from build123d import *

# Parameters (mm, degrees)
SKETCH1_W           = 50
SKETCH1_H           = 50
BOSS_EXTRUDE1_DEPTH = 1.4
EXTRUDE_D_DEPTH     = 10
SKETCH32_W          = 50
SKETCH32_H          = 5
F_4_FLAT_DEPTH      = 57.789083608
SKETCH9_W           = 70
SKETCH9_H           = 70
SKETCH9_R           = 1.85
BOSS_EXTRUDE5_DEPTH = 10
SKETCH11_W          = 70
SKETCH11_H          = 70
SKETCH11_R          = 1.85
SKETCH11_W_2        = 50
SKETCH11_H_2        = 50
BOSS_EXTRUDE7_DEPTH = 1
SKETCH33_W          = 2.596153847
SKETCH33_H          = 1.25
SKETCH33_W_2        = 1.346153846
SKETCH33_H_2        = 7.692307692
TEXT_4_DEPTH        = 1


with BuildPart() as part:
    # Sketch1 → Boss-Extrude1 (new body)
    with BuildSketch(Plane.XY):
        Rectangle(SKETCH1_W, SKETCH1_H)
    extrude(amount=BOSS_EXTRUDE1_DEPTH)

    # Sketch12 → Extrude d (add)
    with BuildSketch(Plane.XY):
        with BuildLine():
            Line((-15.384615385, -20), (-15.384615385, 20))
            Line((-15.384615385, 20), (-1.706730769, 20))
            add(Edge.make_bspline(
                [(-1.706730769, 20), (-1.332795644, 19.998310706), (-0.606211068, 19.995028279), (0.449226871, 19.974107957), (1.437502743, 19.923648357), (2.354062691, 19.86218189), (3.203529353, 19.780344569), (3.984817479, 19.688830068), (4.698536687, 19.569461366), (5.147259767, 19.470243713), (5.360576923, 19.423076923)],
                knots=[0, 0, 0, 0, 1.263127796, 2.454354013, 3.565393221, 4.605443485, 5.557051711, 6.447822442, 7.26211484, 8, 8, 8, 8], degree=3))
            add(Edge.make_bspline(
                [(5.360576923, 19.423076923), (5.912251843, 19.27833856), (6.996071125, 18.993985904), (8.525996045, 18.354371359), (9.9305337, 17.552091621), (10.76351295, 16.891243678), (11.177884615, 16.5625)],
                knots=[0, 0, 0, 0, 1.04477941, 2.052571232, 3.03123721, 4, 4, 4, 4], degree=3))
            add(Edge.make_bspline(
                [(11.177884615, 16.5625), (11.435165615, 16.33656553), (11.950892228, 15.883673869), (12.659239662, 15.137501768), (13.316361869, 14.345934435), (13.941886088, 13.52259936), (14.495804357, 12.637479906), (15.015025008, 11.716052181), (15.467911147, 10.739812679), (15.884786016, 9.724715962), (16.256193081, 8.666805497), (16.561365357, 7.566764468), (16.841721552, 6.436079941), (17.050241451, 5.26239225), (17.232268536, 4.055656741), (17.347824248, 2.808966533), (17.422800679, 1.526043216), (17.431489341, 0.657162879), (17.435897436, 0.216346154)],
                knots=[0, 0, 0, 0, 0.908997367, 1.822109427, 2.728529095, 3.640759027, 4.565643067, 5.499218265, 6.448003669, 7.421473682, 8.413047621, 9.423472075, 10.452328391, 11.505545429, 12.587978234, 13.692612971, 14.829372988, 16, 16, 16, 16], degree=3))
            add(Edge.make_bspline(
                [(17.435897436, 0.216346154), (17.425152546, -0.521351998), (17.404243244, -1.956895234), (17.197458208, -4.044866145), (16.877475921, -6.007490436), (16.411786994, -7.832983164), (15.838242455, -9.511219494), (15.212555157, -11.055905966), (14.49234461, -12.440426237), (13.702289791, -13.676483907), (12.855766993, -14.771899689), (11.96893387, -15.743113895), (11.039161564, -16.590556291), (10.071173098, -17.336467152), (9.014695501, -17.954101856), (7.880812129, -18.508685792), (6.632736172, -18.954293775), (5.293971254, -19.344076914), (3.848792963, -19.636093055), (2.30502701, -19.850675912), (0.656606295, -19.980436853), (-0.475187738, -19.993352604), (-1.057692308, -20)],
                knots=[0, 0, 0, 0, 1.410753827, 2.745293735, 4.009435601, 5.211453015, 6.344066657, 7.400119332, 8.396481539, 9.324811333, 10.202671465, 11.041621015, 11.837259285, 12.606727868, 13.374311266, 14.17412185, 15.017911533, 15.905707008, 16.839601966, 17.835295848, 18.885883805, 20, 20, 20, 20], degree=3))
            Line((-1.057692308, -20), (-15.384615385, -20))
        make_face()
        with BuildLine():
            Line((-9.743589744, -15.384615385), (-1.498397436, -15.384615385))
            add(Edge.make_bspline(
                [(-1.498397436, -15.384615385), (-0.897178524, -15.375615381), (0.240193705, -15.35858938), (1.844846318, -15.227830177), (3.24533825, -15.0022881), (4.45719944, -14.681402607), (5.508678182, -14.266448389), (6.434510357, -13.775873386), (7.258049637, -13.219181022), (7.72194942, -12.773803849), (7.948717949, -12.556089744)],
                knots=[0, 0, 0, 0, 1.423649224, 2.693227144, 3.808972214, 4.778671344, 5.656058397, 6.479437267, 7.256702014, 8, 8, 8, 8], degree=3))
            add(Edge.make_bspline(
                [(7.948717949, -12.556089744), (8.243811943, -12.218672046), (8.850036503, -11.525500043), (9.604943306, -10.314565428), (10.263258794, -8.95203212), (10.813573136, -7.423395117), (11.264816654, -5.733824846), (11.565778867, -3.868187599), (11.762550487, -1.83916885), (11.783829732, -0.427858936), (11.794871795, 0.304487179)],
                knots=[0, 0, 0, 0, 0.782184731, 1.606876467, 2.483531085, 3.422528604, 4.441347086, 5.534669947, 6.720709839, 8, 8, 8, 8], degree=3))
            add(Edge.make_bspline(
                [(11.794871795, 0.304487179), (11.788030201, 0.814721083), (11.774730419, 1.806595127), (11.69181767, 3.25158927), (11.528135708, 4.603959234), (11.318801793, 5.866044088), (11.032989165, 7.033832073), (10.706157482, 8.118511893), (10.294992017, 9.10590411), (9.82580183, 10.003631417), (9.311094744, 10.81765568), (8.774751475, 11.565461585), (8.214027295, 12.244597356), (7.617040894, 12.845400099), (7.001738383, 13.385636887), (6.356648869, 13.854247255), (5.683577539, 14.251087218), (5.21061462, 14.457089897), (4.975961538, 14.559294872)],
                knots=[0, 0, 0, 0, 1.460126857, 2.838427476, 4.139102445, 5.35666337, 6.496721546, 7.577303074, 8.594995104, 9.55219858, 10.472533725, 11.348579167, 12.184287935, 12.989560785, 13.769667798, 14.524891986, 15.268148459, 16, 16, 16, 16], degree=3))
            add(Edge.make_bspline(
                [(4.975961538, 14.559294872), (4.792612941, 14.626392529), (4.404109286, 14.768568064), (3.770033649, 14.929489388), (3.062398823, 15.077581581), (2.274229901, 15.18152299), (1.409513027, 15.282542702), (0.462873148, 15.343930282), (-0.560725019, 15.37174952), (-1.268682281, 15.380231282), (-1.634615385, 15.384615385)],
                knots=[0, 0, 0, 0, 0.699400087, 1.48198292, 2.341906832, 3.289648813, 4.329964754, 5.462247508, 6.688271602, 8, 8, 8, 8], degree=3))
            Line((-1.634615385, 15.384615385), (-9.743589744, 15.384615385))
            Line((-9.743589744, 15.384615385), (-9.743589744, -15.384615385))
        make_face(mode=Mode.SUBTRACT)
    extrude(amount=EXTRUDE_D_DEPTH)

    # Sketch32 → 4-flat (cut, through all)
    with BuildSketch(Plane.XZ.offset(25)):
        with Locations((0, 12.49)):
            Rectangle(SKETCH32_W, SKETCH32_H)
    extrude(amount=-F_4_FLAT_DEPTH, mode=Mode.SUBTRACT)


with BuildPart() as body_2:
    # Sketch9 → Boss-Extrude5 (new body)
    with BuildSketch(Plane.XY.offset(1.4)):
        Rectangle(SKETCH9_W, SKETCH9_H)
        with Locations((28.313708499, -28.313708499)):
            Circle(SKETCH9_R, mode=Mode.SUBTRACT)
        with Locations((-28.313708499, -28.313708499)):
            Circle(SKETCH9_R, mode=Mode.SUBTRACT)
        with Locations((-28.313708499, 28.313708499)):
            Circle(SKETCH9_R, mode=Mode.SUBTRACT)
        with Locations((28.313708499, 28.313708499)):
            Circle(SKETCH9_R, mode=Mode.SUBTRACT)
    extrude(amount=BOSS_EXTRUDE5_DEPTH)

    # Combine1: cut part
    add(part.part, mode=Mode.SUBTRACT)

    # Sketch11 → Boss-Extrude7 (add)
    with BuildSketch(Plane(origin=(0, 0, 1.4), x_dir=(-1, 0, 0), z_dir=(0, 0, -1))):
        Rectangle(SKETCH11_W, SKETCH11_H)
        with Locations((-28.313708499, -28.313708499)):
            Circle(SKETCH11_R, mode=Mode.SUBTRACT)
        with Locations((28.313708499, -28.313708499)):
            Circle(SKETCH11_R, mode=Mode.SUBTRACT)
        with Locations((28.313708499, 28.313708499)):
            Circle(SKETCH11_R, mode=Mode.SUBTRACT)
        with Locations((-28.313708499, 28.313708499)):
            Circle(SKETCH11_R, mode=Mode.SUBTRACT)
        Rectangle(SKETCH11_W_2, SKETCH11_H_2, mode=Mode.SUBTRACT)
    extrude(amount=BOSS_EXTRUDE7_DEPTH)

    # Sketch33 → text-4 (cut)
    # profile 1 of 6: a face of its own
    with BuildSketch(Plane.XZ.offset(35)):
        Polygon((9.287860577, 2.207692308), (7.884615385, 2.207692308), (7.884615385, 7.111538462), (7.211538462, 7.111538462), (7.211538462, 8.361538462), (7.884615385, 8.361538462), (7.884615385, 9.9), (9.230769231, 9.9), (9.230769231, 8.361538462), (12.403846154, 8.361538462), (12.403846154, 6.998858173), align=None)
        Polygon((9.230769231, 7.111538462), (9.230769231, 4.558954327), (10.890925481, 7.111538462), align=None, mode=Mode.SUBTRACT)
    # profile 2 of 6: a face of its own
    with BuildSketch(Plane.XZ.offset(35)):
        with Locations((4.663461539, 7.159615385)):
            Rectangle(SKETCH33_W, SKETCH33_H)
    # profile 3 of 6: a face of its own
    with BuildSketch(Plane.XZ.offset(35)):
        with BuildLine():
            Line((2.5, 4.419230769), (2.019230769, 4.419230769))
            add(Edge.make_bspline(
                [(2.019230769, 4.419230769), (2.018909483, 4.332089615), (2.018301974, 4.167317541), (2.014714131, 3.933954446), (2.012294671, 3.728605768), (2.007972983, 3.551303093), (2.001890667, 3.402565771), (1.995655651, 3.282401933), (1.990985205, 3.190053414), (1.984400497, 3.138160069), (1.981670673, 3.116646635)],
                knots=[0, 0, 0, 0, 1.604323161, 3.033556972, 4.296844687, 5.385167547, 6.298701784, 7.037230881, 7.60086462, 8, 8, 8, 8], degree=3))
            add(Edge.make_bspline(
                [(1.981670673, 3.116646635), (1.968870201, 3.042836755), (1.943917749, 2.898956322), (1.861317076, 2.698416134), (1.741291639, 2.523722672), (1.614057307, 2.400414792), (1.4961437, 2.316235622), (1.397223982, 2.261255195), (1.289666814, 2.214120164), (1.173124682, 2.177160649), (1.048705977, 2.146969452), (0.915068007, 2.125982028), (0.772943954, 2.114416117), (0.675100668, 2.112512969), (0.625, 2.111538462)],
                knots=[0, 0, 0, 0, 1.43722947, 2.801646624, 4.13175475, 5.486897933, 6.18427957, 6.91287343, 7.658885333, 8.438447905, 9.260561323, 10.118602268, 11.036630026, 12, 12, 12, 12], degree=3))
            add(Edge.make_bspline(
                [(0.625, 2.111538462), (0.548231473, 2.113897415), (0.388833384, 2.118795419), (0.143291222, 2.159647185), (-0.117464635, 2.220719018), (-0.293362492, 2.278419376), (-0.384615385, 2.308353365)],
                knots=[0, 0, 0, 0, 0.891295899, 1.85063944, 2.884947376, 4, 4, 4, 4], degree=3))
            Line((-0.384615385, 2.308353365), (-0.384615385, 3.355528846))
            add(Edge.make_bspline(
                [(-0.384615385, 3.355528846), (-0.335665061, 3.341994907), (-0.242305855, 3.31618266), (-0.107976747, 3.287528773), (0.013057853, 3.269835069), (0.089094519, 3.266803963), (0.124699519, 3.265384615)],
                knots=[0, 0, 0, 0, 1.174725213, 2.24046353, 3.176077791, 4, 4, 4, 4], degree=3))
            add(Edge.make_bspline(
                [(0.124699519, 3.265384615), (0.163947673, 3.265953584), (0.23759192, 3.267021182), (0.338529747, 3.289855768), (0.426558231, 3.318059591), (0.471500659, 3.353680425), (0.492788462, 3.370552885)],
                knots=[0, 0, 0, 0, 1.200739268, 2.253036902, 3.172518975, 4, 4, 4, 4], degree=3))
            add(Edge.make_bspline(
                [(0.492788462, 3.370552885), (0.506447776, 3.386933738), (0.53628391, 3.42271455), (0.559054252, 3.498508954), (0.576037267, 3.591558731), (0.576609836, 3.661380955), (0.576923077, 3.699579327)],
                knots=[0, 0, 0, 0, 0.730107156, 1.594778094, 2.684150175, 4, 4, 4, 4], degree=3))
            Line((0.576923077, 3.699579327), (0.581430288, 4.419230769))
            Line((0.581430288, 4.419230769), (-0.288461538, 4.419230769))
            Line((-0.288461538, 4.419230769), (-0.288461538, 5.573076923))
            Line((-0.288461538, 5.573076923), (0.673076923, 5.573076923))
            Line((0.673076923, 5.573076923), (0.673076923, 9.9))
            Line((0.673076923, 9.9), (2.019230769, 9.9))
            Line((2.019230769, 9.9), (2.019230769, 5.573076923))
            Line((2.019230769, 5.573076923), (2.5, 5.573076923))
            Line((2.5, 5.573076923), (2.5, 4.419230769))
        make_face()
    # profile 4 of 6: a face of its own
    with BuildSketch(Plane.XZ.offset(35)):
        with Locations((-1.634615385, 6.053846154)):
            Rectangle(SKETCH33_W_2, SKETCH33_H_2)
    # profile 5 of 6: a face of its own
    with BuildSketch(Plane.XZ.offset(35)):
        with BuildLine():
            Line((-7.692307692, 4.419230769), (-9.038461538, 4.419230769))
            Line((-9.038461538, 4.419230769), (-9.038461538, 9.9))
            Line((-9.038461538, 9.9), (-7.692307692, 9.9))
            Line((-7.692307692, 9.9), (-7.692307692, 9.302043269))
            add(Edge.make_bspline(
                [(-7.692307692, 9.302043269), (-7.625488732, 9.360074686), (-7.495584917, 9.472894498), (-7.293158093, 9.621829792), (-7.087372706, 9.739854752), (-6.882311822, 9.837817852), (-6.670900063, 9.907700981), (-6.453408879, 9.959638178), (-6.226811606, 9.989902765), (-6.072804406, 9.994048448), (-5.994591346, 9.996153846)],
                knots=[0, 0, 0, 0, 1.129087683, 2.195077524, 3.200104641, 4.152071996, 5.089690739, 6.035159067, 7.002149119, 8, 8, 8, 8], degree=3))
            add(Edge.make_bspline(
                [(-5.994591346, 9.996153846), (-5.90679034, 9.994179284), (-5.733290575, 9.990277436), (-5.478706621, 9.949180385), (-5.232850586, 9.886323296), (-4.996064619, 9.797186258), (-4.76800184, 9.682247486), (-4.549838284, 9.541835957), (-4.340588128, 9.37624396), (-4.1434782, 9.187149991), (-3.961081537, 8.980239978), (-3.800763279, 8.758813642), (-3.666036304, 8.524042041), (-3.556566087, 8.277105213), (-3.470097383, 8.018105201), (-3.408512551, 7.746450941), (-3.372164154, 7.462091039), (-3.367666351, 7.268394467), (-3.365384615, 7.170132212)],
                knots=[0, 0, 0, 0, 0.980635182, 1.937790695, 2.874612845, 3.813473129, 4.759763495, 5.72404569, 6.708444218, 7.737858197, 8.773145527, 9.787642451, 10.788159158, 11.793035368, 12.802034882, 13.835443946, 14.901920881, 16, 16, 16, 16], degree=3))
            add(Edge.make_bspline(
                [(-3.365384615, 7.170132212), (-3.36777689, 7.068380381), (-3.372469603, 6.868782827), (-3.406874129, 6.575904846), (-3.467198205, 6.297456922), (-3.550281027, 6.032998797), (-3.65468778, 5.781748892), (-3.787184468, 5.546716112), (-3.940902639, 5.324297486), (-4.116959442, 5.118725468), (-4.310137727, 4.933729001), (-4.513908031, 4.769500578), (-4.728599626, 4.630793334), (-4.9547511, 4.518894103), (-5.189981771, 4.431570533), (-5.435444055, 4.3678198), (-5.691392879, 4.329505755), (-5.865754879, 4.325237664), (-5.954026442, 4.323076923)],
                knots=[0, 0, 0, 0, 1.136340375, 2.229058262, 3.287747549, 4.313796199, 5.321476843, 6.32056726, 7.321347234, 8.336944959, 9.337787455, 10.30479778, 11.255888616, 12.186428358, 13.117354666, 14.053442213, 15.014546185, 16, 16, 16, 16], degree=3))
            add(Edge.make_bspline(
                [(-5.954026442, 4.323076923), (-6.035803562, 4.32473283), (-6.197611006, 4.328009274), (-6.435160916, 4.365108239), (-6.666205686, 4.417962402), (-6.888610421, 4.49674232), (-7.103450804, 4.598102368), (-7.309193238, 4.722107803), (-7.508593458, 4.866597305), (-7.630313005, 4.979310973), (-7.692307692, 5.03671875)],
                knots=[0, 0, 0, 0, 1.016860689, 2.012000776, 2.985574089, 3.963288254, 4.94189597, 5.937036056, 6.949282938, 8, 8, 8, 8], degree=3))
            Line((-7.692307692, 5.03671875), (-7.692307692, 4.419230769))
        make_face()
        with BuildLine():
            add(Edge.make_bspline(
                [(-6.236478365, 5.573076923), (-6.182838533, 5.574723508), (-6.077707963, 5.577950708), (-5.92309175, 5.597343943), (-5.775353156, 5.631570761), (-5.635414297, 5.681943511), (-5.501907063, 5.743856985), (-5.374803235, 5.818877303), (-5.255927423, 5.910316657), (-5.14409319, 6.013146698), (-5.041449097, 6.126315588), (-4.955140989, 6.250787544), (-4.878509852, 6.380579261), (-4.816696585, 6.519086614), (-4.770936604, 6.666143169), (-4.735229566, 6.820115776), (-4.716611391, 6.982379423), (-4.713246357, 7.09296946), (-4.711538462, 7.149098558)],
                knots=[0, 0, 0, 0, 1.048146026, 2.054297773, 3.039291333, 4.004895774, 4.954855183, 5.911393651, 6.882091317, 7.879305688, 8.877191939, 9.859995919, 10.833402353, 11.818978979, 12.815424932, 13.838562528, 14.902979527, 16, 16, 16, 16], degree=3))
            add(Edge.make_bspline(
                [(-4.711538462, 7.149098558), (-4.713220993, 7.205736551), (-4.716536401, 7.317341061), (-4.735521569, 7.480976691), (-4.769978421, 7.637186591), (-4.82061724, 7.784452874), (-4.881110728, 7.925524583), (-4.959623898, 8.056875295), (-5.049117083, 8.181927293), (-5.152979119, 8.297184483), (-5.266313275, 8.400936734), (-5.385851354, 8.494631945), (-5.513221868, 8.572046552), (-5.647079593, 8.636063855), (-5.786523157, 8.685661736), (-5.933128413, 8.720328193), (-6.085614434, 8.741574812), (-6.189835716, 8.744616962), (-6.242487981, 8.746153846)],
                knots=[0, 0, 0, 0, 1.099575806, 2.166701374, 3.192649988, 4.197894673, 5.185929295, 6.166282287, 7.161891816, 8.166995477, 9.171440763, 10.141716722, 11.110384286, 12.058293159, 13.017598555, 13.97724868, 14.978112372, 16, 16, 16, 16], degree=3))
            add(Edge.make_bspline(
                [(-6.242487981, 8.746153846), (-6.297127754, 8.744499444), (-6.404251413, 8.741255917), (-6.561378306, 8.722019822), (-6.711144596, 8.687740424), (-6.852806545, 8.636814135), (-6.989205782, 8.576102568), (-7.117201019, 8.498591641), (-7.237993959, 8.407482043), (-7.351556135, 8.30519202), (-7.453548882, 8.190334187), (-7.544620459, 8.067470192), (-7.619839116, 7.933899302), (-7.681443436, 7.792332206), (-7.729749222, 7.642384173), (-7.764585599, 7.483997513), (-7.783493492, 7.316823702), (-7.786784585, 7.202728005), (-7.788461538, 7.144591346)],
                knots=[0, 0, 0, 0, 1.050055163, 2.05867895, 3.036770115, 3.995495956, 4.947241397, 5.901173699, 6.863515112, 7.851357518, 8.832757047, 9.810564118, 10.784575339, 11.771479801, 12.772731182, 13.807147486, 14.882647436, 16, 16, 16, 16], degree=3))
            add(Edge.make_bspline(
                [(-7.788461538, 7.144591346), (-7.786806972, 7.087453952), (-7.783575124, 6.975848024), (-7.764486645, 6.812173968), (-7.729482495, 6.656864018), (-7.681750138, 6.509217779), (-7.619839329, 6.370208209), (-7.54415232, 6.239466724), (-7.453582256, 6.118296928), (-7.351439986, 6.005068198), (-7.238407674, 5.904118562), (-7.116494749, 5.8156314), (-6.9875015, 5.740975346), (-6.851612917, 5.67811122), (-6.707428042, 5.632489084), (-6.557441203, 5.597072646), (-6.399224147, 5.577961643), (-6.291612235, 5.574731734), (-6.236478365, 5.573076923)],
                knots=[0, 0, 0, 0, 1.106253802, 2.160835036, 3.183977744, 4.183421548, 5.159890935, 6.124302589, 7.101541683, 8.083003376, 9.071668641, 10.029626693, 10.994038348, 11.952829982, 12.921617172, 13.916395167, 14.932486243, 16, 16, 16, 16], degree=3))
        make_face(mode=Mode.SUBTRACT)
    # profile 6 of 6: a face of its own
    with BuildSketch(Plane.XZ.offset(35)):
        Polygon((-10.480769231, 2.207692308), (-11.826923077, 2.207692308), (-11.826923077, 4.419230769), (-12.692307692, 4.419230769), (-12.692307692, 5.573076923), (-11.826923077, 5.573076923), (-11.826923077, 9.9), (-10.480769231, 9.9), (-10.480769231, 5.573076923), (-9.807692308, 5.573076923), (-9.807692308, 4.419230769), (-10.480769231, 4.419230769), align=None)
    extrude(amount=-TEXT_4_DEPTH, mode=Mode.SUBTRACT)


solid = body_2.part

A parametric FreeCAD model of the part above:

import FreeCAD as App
import Part
import Sketcher

V = App.Vector


def add_polygon(sketch, points):
    """Adds a closed chain of lines whose ends are joined by coincident constraints."""
    first, n = sketch.GeometryCount, len(points)
    for a, b in zip(points, points[1:] + points[:1]):
        sketch.addGeometry(Part.LineSegment(App.Vector(*a, 0), App.Vector(*b, 0)), False)
    for i in range(n):
        sketch.addConstraint(Sketcher.Constraint("Coincident", first + i, 2, first + (i + 1) % n, 1))

doc = App.newDocument("Part")
body = doc.addObject("PartDesign::Body", "Body")

sketch1 = body.newObject("Sketcher::SketchObject", "Sketch")
sketch1.AttachmentSupport = (doc.getObject("XY_Plane"), [""])
sketch1.MapMode = "FlatFace"
add_polygon(sketch1, [(-25, 25), (-25, -25), (25, -25), (25, 25)])
sketch1.addConstraint(Sketcher.Constraint("Vertical", 0))
sketch1.addConstraint(Sketcher.Constraint("Horizontal", 1))
sketch1.addConstraint(Sketcher.Constraint("Vertical", 2))
sketch1.addConstraint(Sketcher.Constraint("Horizontal", 3))
sketch1.addConstraint(Sketcher.Constraint("Symmetric", 0, 2, 2, 2, -1, 1))
sketch1.addConstraint(Sketcher.Constraint("Equal", 3, 0))
sketch1.addConstraint(Sketcher.Constraint("DistanceX", 1, 1, 1, 2, 50.0))
pad1 = body.newObject("PartDesign::Pad", "Pad")
pad1.Profile = sketch1
pad1.Length = 1.4

sketch2 = body.newObject("Sketcher::SketchObject", "Sketch001")
sketch2.AttachmentSupport = (doc.getObject("XY_Plane"), [""])
sketch2.MapMode = "FlatFace"
sketch2.addGeometry(Part.LineSegment(V(-15.384615, 20, 0), V(-15.384615, -20, 0)), False)
sketch2.addGeometry(Part.LineSegment(V(-15.384615, -20, 0), V(-1.057692, -20, 0)), False)
sketch2.addGeometry(Part.BSplineCurve([V(17.435897, 0.216346, 0), V(17.425153, -0.521352, 0), V(17.404243, -1.956895, 0), V(17.197458, -4.044866, 0), V(16.877476, -6.00749, 0), V(16.411787, -7.832983, 0), V(15.838242, -9.511219, 0), V(15.212555, -11.055906, 0), V(14.492345, -12.440426, 0), V(13.70229, -13.676484, 0), V(12.855767, -14.7719, 0), V(11.968934, -15.743114, 0), V(11.039162, -16.590556, 0), V(10.071173, -17.336467, 0), V(9.014696, -17.954102, 0), V(7.880812, -18.508686, 0), V(6.632736, -18.954294, 0), V(5.293971, -19.344077, 0), V(3.848793, -19.636093, 0), V(2.305027, -19.850676, 0), V(0.656606, -19.980437, 0), V(-0.475188, -19.993353, 0), V(-1.057692, -20, 0)], [4, 1, 1, 1, 1, 1, 1, 1, 1, 1, 1, 1, 1, 1, 1, 1, 1, 1, 1, 1, 4], [0, 1.410753827, 2.745293735, 4.009435601, 5.211453015, 6.344066657, 7.400119332, 8.396481539, 9.324811333, 10.202671465, 11.041621015, 11.837259285, 12.606727868, 13.374311266, 14.17412185, 15.017911533, 15.905707008, 16.839601966, 17.835295848, 18.885883805, 20], False, 3, [1, 1, 1, 1, 1, 1, 1, 1, 1, 1, 1, 1, 1, 1, 1, 1, 1, 1, 1, 1, 1, 1, 1], False), False)
sketch2.addGeometry(Part.BSplineCurve([V(11.177885, 16.5625, 0), V(11.435166, 16.336566, 0), V(11.950892, 15.883674, 0), V(12.65924, 15.137502, 0), V(13.316362, 14.345934, 0), V(13.941886, 13.522599, 0), V(14.495804, 12.63748, 0), V(15.015025, 11.716052, 0), V(15.467911, 10.739813, 0), V(15.884786, 9.724716, 0), V(16.256193, 8.666805, 0), V(16.561365, 7.566764, 0), V(16.841722, 6.43608, 0), V(17.050241, 5.262392, 0), V(17.232269, 4.055657, 0), V(17.347824, 2.808967, 0), V(17.422801, 1.526043, 0), V(17.431489, 0.657163, 0), V(17.435897, 0.216346, 0)], [4, 1, 1, 1, 1, 1, 1, 1, 1, 1, 1, 1, 1, 1, 1, 1, 4], [0, 0.908997367, 1.822109427, 2.728529095, 3.640759027, 4.565643067, 5.499218265, 6.448003669, 7.421473682, 8.413047621, 9.423472075, 10.452328391, 11.505545429, 12.587978234, 13.692612971, 14.829372988, 16], False, 3, [1, 1, 1, 1, 1, 1, 1, 1, 1, 1, 1, 1, 1, 1, 1, 1, 1, 1, 1], False), False)
sketch2.addGeometry(Part.BSplineCurve([V(5.360577, 19.423077, 0), V(5.912252, 19.278339, 0), V(6.996071, 18.993986, 0), V(8.525996, 18.354371, 0), V(9.930534, 17.552092, 0), V(10.763513, 16.891244, 0), V(11.177885, 16.5625, 0)], [4, 1, 1, 1, 4], [0, 1.04477941, 2.052571232, 3.03123721, 4], False, 3, [1, 1, 1, 1, 1, 1, 1], False), False)
sketch2.addGeometry(Part.BSplineCurve([V(-1.706731, 20, 0), V(-1.332796, 19.998311, 0), V(-0.606211, 19.995028, 0), V(0.449227, 19.974108, 0), V(1.437503, 19.923648, 0), V(2.354063, 19.862182, 0), V(3.203529, 19.780345, 0), V(3.984817, 19.68883, 0), V(4.698537, 19.569461, 0), V(5.14726, 19.470244, 0), V(5.360577, 19.423077, 0)], [4, 1, 1, 1, 1, 1, 1, 1, 4], [0, 1.263127796, 2.454354013, 3.565393221, 4.605443485, 5.557051711, 6.447822442, 7.26211484, 8], False, 3, [1, 1, 1, 1, 1, 1, 1, 1, 1, 1, 1], False), False)
sketch2.addGeometry(Part.LineSegment(V(-1.706731, 20, 0), V(-15.384615, 20, 0)), False)
sketch2.addGeometry(Part.LineSegment(V(-9.74359, -15.384615, 0), V(-9.74359, 15.384615, 0)), False)
sketch2.addGeometry(Part.LineSegment(V(-9.74359, 15.384615, 0), V(-1.634615, 15.384615, 0)), False)
sketch2.addGeometry(Part.BSplineCurve([V(4.975962, 14.559295, 0), V(4.792613, 14.626393, 0), V(4.404109, 14.768568, 0), V(3.770034, 14.929489, 0), V(3.062399, 15.077582, 0), V(2.27423, 15.181523, 0), V(1.409513, 15.282543, 0), V(0.462873, 15.34393, 0), V(-0.560725, 15.37175, 0), V(-1.268682, 15.380231, 0), V(-1.634615, 15.384615, 0)], [4, 1, 1, 1, 1, 1, 1, 1, 4], [0, 0.699400087, 1.48198292, 2.341906832, 3.289648813, 4.329964754, 5.462247508, 6.688271602, 8], False, 3, [1, 1, 1, 1, 1, 1, 1, 1, 1, 1, 1], False), False)
sketch2.addGeometry(Part.BSplineCurve([V(11.794872, 0.304487, 0), V(11.78803, 0.814721, 0), V(11.77473, 1.806595, 0), V(11.691818, 3.251589, 0), V(11.528136, 4.603959, 0), V(11.318802, 5.866044, 0), V(11.032989, 7.033832, 0), V(10.706157, 8.118512, 0), V(10.294992, 9.105904, 0), V(9.825802, 10.003631, 0), V(9.311095, 10.817656, 0), V(8.774751, 11.565462, 0), V(8.214027, 12.244597, 0), V(7.617041, 12.8454, 0), V(7.001738, 13.385637, 0), V(6.356649, 13.854247, 0), V(5.683578, 14.251087, 0), V(5.210615, 14.45709, 0), V(4.975962, 14.559295, 0)], [4, 1, 1, 1, 1, 1, 1, 1, 1, 1, 1, 1, 1, 1, 1, 1, 4], [0, 1.460126857, 2.838427476, 4.139102445, 5.35666337, 6.496721546, 7.577303074, 8.594995104, 9.55219858, 10.472533725, 11.348579167, 12.184287935, 12.989560785, 13.769667798, 14.524891986, 15.268148459, 16], False, 3, [1, 1, 1, 1, 1, 1, 1, 1, 1, 1, 1, 1, 1, 1, 1, 1, 1, 1, 1], False), False)
sketch2.addGeometry(Part.BSplineCurve([V(7.948718, -12.55609, 0), V(8.243812, -12.218672, 0), V(8.850037, -11.5255, 0), V(9.604943, -10.314565, 0), V(10.263259, -8.952032, 0), V(10.813573, -7.423395, 0), V(11.264817, -5.733825, 0), V(11.565779, -3.868188, 0), V(11.76255, -1.839169, 0), V(11.78383, -0.427859, 0), V(11.794872, 0.304487, 0)], [4, 1, 1, 1, 1, 1, 1, 1, 4], [0, 0.782184731, 1.606876467, 2.483531085, 3.422528604, 4.441347086, 5.534669947, 6.720709839, 8], False, 3, [1, 1, 1, 1, 1, 1, 1, 1, 1, 1, 1], False), False)
sketch2.addGeometry(Part.BSplineCurve([V(-1.498397, -15.384615, 0), V(-0.897179, -15.375615, 0), V(0.240194, -15.358589, 0), V(1.844846, -15.22783, 0), V(3.245338, -15.002288, 0), V(4.457199, -14.681403, 0), V(5.508678, -14.266448, 0), V(6.43451, -13.775873, 0), V(7.25805, -13.219181, 0), V(7.721949, -12.773804, 0), V(7.948718, -12.55609, 0)], [4, 1, 1, 1, 1, 1, 1, 1, 4], [0, 1.423649224, 2.693227144, 3.808972214, 4.778671344, 5.656058397, 6.479437267, 7.256702014, 8], False, 3, [1, 1, 1, 1, 1, 1, 1, 1, 1, 1, 1], False), False)
sketch2.addGeometry(Part.LineSegment(V(-1.498397, -15.384615, 0), V(-9.74359, -15.384615, 0)), False)
sketch2.addConstraint(Sketcher.Constraint("Block", 2))
sketch2.addConstraint(Sketcher.Constraint("Block", 3))
sketch2.addConstraint(Sketcher.Constraint("Block", 4))
sketch2.addConstraint(Sketcher.Constraint("Block", 5))
sketch2.addConstraint(Sketcher.Constraint("Block", 9))
sketch2.addConstraint(Sketcher.Constraint("Block", 10))
sketch2.addConstraint(Sketcher.Constraint("Block", 11))
sketch2.addConstraint(Sketcher.Constraint("Block", 12))
sketch2.addConstraint(Sketcher.Constraint("Coincident", 0, 2, 1, 1))
sketch2.addConstraint(Sketcher.Constraint("Coincident", 1, 2, 2, 2))
sketch2.addConstraint(Sketcher.Constraint("Coincident", 5, 1, 6, 1))
sketch2.addConstraint(Sketcher.Constraint("Coincident", 6, 2, 0, 1))
sketch2.addConstraint(Sketcher.Constraint("Coincident", 7, 2, 8, 1))
sketch2.addConstraint(Sketcher.Constraint("Coincident", 8, 2, 9, 2))
sketch2.addConstraint(Sketcher.Constraint("Coincident", 12, 1, 13, 1))
sketch2.addConstraint(Sketcher.Constraint("Coincident", 13, 2, 7, 1))
sketch2.addConstraint(Sketcher.Constraint("Vertical", 0))
sketch2.addConstraint(Sketcher.Constraint("Horizontal", 1))
sketch2.addConstraint(Sketcher.Constraint("Horizontal", 6))
sketch2.addConstraint(Sketcher.Constraint("Vertical", 7))
sketch2.addConstraint(Sketcher.Constraint("Horizontal", 8))
sketch2.addConstraint(Sketcher.Constraint("Horizontal", 13))
sketch2.addConstraint(Sketcher.Constraint("DistanceX", 6, 2, 8, 2, 13.75))
sketch2.addConstraint(Sketcher.Constraint("DistanceX", 8, 1, 8, 2, 8.108974))
pad2 = body.newObject("PartDesign::Pad", "Pad001")
pad2.Profile = sketch2
pad2.Length = 10

sketch3 = body.newObject("Sketcher::SketchObject", "Sketch002")
sketch3.AttachmentSupport = (doc.getObject("XZ_Plane"), [""])
sketch3.MapMode = "FlatFace"
sketch3.AttachmentOffset = App.Placement(V(0, 0, 25), App.Rotation())
add_polygon(sketch3, [(-25, 15), (-25, 10), (25, 10), (25, 15)])
sketch3.addConstraint(Sketcher.Constraint("Vertical", 0))
sketch3.addConstraint(Sketcher.Constraint("Horizontal", 1))
sketch3.addConstraint(Sketcher.Constraint("Vertical", 2))
sketch3.addConstraint(Sketcher.Constraint("Horizontal", 3))
sketch3.addConstraint(Sketcher.Constraint("DistanceX", 1, 1, 1, 2, 50.0))
sketch3.addConstraint(Sketcher.Constraint("DistanceY", 0, 2, 0, 1, 5.0))
sketch3.addConstraint(Sketcher.Constraint("DistanceX", 0, 2, -1, 1, 25.0))
sketch3.addConstraint(Sketcher.Constraint("DistanceY", -1, 1, 0, 2, 9.99))
pocket1 = body.newObject("PartDesign::Pocket", "Pocket")
pocket1.Profile = sketch3
pocket1.Type = "ThroughAll"
body2 = doc.addObject("PartDesign::Body", "Body001")

sketch4 = body2.newObject("Sketcher::SketchObject", "Sketch003")
sketch4.AttachmentSupport = (doc.getObject("XY_Plane001"), [""])
sketch4.MapMode = "FlatFace"
sketch4.AttachmentOffset = App.Placement(V(0, 0, 1.4), App.Rotation())
add_polygon(sketch4, [(-35, 35), (-35, -35), (35, -35), (35, 35)])
sketch4.addGeometry(Part.Circle(V(-28.3, -28.3, 0), V(0, 0, 1), 1.9), False)
sketch4.addGeometry(Part.Circle(V(28.3, -28.3, 0), V(0, 0, 1), 1.9), False)
sketch4.addGeometry(Part.Circle(V(-28.3, 28.3, 0), V(0, 0, 1), 1.9), False)
sketch4.addGeometry(Part.Circle(V(28.3, 28.3, 0), V(0, 0, 1), 1.9), False)
sketch4.addConstraint(Sketcher.Constraint("Vertical", 0))
sketch4.addConstraint(Sketcher.Constraint("Horizontal", 1))
sketch4.addConstraint(Sketcher.Constraint("Vertical", 2))
sketch4.addConstraint(Sketcher.Constraint("Horizontal", 3))
sketch4.addConstraint(Sketcher.Constraint("Equal", 4, 5))
sketch4.addConstraint(Sketcher.Constraint("Equal", 5, 6))
sketch4.addConstraint(Sketcher.Constraint("Equal", 6, 7))
sketch4.addConstraint(Sketcher.Constraint("Symmetric", 5, 3, 6, 3, -1, 1))
sketch4.addConstraint(Sketcher.Constraint("Symmetric", 4, 3, 7, 3, -1, 1))
sketch4.addConstraint(Sketcher.Constraint("Symmetric", 0, 2, 2, 2, -1, 1))
sketch4.addConstraint(Sketcher.Constraint("Symmetric", 4, 3, 5, 3, -2))
sketch4.addConstraint(Sketcher.Constraint("Equal", 3, 0))
sketch4.addConstraint(Sketcher.Constraint("Diameter", 4, 3.7))
sketch4.addConstraint(Sketcher.Constraint("DistanceX", 1, 1, 1, 2, 70.0))
sketch4.addConstraint(Sketcher.Constraint("DistanceX", 4, 3, -1, 1, 28.313708))
sketch4.addConstraint(Sketcher.Constraint("DistanceY", 4, 3, -1, 1, 28.313708))
pad3 = body2.newObject("PartDesign::Pad", "Pad002")
pad3.Profile = sketch4
pad3.Length = 10
doc.recompute()

boolean = body2.newObject("PartDesign::Boolean", "Boolean")
boolean.Type = "Cut"
boolean.addObjects([body])

sketch5 = body2.newObject("Sketcher::SketchObject", "Sketch004")
sketch5.AttachmentSupport = (doc.getObject("XY_Plane001"), [""])
sketch5.MapMode = "FlatFace"
sketch5.AttachmentOffset = App.Placement(V(0, 0, 1.4), App.Rotation())
add_polygon(sketch5, [(35, 35), (35, -35), (-35, -35), (-35, 35)])
sketch5.addGeometry(Part.Circle(V(28.3, -28.3, 0), V(0, 0, 1), 1.9), False)
sketch5.addGeometry(Part.Circle(V(-28.3, -28.3, 0), V(0, 0, 1), 1.9), False)
sketch5.addGeometry(Part.Circle(V(28.3, 28.3, 0), V(0, 0, 1), 1.9), False)
add_polygon(sketch5, [(-25, -25), (25, -25), (25, 25), (-25, 25)])
sketch5.addGeometry(Part.Circle(V(-28.3, 28.3, 0), V(0, 0, 1), 1.9), False)
sketch5.addConstraint(Sketcher.Constraint("Vertical", 0))
sketch5.addConstraint(Sketcher.Constraint("Horizontal", 1))
sketch5.addConstraint(Sketcher.Constraint("Vertical", 2))
sketch5.addConstraint(Sketcher.Constraint("Horizontal", 3))
sketch5.addConstraint(Sketcher.Constraint("Horizontal", 7))
sketch5.addConstraint(Sketcher.Constraint("Vertical", 8))
sketch5.addConstraint(Sketcher.Constraint("Horizontal", 9))
sketch5.addConstraint(Sketcher.Constraint("Vertical", 10))
sketch5.addConstraint(Sketcher.Constraint("Equal", 4, 5))
sketch5.addConstraint(Sketcher.Constraint("Equal", 5, 6))
sketch5.addConstraint(Sketcher.Constraint("Equal", 6, 11))
sketch5.addConstraint(Sketcher.Constraint("Symmetric", 5, 3, 6, 3, -1, 1))
sketch5.addConstraint(Sketcher.Constraint("Symmetric", 4, 3, 11, 3, -1, 1))
sketch5.addConstraint(Sketcher.Constraint("Symmetric", 0, 2, 2, 2, -1, 1))
sketch5.addConstraint(Sketcher.Constraint("Symmetric", 7, 2, 9, 2, -1, 1))
sketch5.addConstraint(Sketcher.Constraint("Symmetric", 4, 3, 5, 3, -2))
sketch5.addConstraint(Sketcher.Constraint("Equal", 3, 0))
sketch5.addConstraint(Sketcher.Constraint("Equal", 9, 8))
sketch5.addConstraint(Sketcher.Constraint("Diameter", 4, 3.7))
sketch5.addConstraint(Sketcher.Constraint("DistanceX", 1, 2, 1, 1, 70.0))
sketch5.addConstraint(Sketcher.Constraint("DistanceX", 7, 1, 7, 2, 50.0))
sketch5.addConstraint(Sketcher.Constraint("DistanceX", -1, 1, 4, 3, 28.313708))
sketch5.addConstraint(Sketcher.Constraint("DistanceY", 4, 3, -1, 1, 28.313708))
pad4 = body2.newObject("PartDesign::Pad", "Pad003")
pad4.Profile = sketch5
pad4.Length = 1
pad4.Reversed = True

sketch6 = body2.newObject("Sketcher::SketchObject", "Sketch005")
sketch6.AttachmentSupport = (doc.getObject("XZ_Plane001"), [""])
sketch6.MapMode = "FlatFace"
sketch6.AttachmentOffset = App.Placement(V(0, 0, 35), App.Rotation())
add_polygon(sketch6, [(7.884615, 2.207692), (9.287861, 2.207692), (12.403846, 6.998858), (12.403846, 8.361538), (9.230769, 8.361538), (9.230769, 9.9), (7.884615, 9.9), (7.884615, 8.361538), (7.211538, 8.361538), (7.211538, 7.111538), (7.884615, 7.111538)])
add_polygon(sketch6, [(9.230769, 7.111538), (10.890925, 7.111538), (9.230769, 4.558954)])
add_polygon(sketch6, [(3.365385, 7.784615), (3.365385, 6.534615), (5.961538, 6.534615), (5.961538, 7.784615)])
sketch6.addGeometry(Part.LineSegment(V(2.019231, 4.419231, 0), V(2.5, 4.419231, 0)), False)
sketch6.addGeometry(Part.LineSegment(V(2.5, 4.419231, 0), V(2.5, 5.573077, 0)), False)
sketch6.addGeometry(Part.LineSegment(V(2.5, 5.573077, 0), V(2.019231, 5.573077, 0)), False)
sketch6.addGeometry(Part.LineSegment(V(2.019231, 5.573077, 0), V(2.019231, 9.9, 0)), False)
sketch6.addGeometry(Part.LineSegment(V(2.019231, 9.9, 0), V(0.673077, 9.9, 0)), False)
sketch6.addGeometry(Part.LineSegment(V(0.673077, 9.9, 0), V(0.673077, 5.573077, 0)), False)
sketch6.addGeometry(Part.LineSegment(V(0.673077, 5.573077, 0), V(-0.288462, 5.573077, 0)), False)
sketch6.addGeometry(Part.LineSegment(V(-0.288462, 5.573077, 0), V(-0.288462, 4.419231, 0)), False)
sketch6.addGeometry(Part.LineSegment(V(-0.288462, 4.419231, 0), V(0.58143, 4.419231, 0)), False)
sketch6.addGeometry(Part.LineSegment(V(0.58143, 4.419231, 0), V(0.576923, 3.699579, 0)), False)
sketch6.addGeometry(Part.BSplineCurve([V(0.492788, 3.370553, 0), V(0.506448, 3.386934, 0), V(0.536284, 3.422715, 0), V(0.559054, 3.498509, 0), V(0.576037, 3.591559, 0), V(0.57661, 3.661381, 0), V(0.576923, 3.699579, 0)], [4, 1, 1, 1, 4], [0, 0.730107156, 1.594778094, 2.684150175, 4], False, 3, [1, 1, 1, 1, 1, 1, 1], False), False)
sketch6.addGeometry(Part.BSplineCurve([V(0.1247, 3.265385, 0), V(0.163948, 3.265954, 0), V(0.237592, 3.267021, 0), V(0.33853, 3.289856, 0), V(0.426558, 3.31806, 0), V(0.471501, 3.35368, 0), V(0.492788, 3.370553, 0)], [4, 1, 1, 1, 4], [0, 1.200739268, 2.253036902, 3.172518975, 4], False, 3, [1, 1, 1, 1, 1, 1, 1], False), False)
sketch6.addGeometry(Part.BSplineCurve([V(-0.384615, 3.355529, 0), V(-0.335665, 3.341995, 0), V(-0.242306, 3.316183, 0), V(-0.107977, 3.287529, 0), V(0.013058, 3.269835, 0), V(0.089095, 3.266804, 0), V(0.1247, 3.265385, 0)], [4, 1, 1, 1, 4], [0, 1.174725213, 2.24046353, 3.176077791, 4], False, 3, [1, 1, 1, 1, 1, 1, 1], False), False)
sketch6.addGeometry(Part.LineSegment(V(-0.384615, 3.355529, 0), V(-0.384615, 2.308353, 0)), False)
sketch6.addGeometry(Part.BSplineCurve([V(0.625, 2.111538, 0), V(0.548231, 2.113897, 0), V(0.388833, 2.118795, 0), V(0.143291, 2.159647, 0), V(-0.117465, 2.220719, 0), V(-0.293362, 2.278419, 0), V(-0.384615, 2.308353, 0)], [4, 1, 1, 1, 4], [0, 0.891295899, 1.85063944, 2.884947376, 4], False, 3, [1, 1, 1, 1, 1, 1, 1], False), False)
sketch6.addGeometry(Part.BSplineCurve([V(1.981671, 3.116647, 0), V(1.96887, 3.042837, 0), V(1.943918, 2.898956, 0), V(1.861317, 2.698416, 0), V(1.741292, 2.523723, 0), V(1.614057, 2.400415, 0), V(1.496144, 2.316236, 0), V(1.397224, 2.261255, 0), V(1.289667, 2.21412, 0), V(1.173125, 2.177161, 0), V(1.048706, 2.146969, 0), V(0.915068, 2.125982, 0), V(0.772944, 2.114416, 0), V(0.675101, 2.112513, 0), V(0.625, 2.111538, 0)], [4, 1, 1, 1, 1, 1, 1, 1, 1, 1, 1, 1, 4], [0, 1.43722947, 2.801646624, 4.13175475, 5.486897933, 6.18427957, 6.91287343, 7.658885333, 8.438447905, 9.260561323, 10.118602268, 11.036630026, 12], False, 3, [1, 1, 1, 1, 1, 1, 1, 1, 1, 1, 1, 1, 1, 1, 1], False), False)
sketch6.addGeometry(Part.BSplineCurve([V(2.019231, 4.419231, 0), V(2.018909, 4.33209, 0), V(2.018302, 4.167318, 0), V(2.014714, 3.933954, 0), V(2.012295, 3.728606, 0), V(2.007973, 3.551303, 0), V(2.001891, 3.402566, 0), V(1.995656, 3.282402, 0), V(1.990985, 3.190053, 0), V(1.9844, 3.13816, 0), V(1.981671, 3.116647, 0)], [4, 1, 1, 1, 1, 1, 1, 1, 4], [0, 1.604323161, 3.033556972, 4.296844687, 5.385167547, 6.298701784, 7.037230881, 7.60086462, 8], False, 3, [1, 1, 1, 1, 1, 1, 1, 1, 1, 1, 1], False), False)
add_polygon(sketch6, [(-2.307692, 9.9), (-2.307692, 2.207692), (-0.961538, 2.207692), (-0.961538, 9.9)])
sketch6.addGeometry(Part.LineSegment(V(-9.038462, 4.419231, 0), V(-7.692308, 4.419231, 0)), False)
sketch6.addGeometry(Part.LineSegment(V(-7.692308, 4.419231, 0), V(-7.692308, 5.036719, 0)), False)
sketch6.addGeometry(Part.BSplineCurve([V(-5.954026, 4.323077, 0), V(-6.035804, 4.324733, 0), V(-6.197611, 4.328009, 0), V(-6.435161, 4.365108, 0), V(-6.666206, 4.417962, 0), V(-6.88861, 4.496742, 0), V(-7.103451, 4.598102, 0), V(-7.309193, 4.722108, 0), V(-7.508593, 4.866597, 0), V(-7.630313, 4.979311, 0), V(-7.692308, 5.036719, 0)], [4, 1, 1, 1, 1, 1, 1, 1, 4], [0, 1.016860689, 2.012000776, 2.985574089, 3.963288254, 4.94189597, 5.937036056, 6.949282938, 8], False, 3, [1, 1, 1, 1, 1, 1, 1, 1, 1, 1, 1], False), False)
sketch6.addGeometry(Part.BSplineCurve([V(-3.365385, 7.170132, 0), V(-3.367777, 7.06838, 0), V(-3.37247, 6.868783, 0), V(-3.406874, 6.575905, 0), V(-3.467198, 6.297457, 0), V(-3.550281, 6.032999, 0), V(-3.654688, 5.781749, 0), V(-3.787184, 5.546716, 0), V(-3.940903, 5.324297, 0), V(-4.116959, 5.118725, 0), V(-4.310138, 4.933729, 0), V(-4.513908, 4.769501, 0), V(-4.7286, 4.630793, 0), V(-4.954751, 4.518894, 0), V(-5.189982, 4.431571, 0), V(-5.435444, 4.36782, 0), V(-5.691393, 4.329506, 0), V(-5.865755, 4.325238, 0), V(-5.954026, 4.323077, 0)], [4, 1, 1, 1, 1, 1, 1, 1, 1, 1, 1, 1, 1, 1, 1, 1, 4], [0, 1.136340375, 2.229058262, 3.287747549, 4.313796199, 5.321476843, 6.32056726, 7.321347234, 8.336944959, 9.337787455, 10.30479778, 11.255888616, 12.186428358, 13.117354666, 14.053442213, 15.014546185, 16], False, 3, [1, 1, 1, 1, 1, 1, 1, 1, 1, 1, 1, 1, 1, 1, 1, 1, 1, 1, 1], False), False)
sketch6.addGeometry(Part.BSplineCurve([V(-5.994591, 9.996154, 0), V(-5.90679, 9.994179, 0), V(-5.733291, 9.990277, 0), V(-5.478707, 9.94918, 0), V(-5.232851, 9.886323, 0), V(-4.996065, 9.797186, 0), V(-4.768002, 9.682247, 0), V(-4.549838, 9.541836, 0), V(-4.340588, 9.376244, 0), V(-4.143478, 9.18715, 0), V(-3.961082, 8.98024, 0), V(-3.800763, 8.758814, 0), V(-3.666036, 8.524042, 0), V(-3.556566, 8.277105, 0), V(-3.470097, 8.018105, 0), V(-3.408513, 7.746451, 0), V(-3.372164, 7.462091, 0), V(-3.367666, 7.268394, 0), V(-3.365385, 7.170132, 0)], [4, 1, 1, 1, 1, 1, 1, 1, 1, 1, 1, 1, 1, 1, 1, 1, 4], [0, 0.980635182, 1.937790695, 2.874612845, 3.813473129, 4.759763495, 5.72404569, 6.708444218, 7.737858197, 8.773145527, 9.787642451, 10.788159158, 11.793035368, 12.802034882, 13.835443946, 14.901920881, 16], False, 3, [1, 1, 1, 1, 1, 1, 1, 1, 1, 1, 1, 1, 1, 1, 1, 1, 1, 1, 1], False), False)
sketch6.addGeometry(Part.BSplineCurve([V(-7.692308, 9.302043, 0), V(-7.625489, 9.360075, 0), V(-7.495585, 9.472894, 0), V(-7.293158, 9.62183, 0), V(-7.087373, 9.739855, 0), V(-6.882312, 9.837818, 0), V(-6.6709, 9.907701, 0), V(-6.453409, 9.959638, 0), V(-6.226812, 9.989903, 0), V(-6.072804, 9.994048, 0), V(-5.994591, 9.996154, 0)], [4, 1, 1, 1, 1, 1, 1, 1, 4], [0, 1.129087683, 2.195077524, 3.200104641, 4.152071996, 5.089690739, 6.035159067, 7.002149119, 8], False, 3, [1, 1, 1, 1, 1, 1, 1, 1, 1, 1, 1], False), False)
sketch6.addGeometry(Part.LineSegment(V(-7.692308, 9.302043, 0), V(-7.692308, 9.9, 0)), False)
sketch6.addGeometry(Part.LineSegment(V(-7.692308, 9.9, 0), V(-9.038462, 9.9, 0)), False)
sketch6.addGeometry(Part.LineSegment(V(-9.038462, 9.9, 0), V(-9.038462, 4.419231, 0)), False)
sketch6.addGeometry(Part.BSplineCurve([V(-7.788462, 7.144591, 0), V(-7.786807, 7.087454, 0), V(-7.783575, 6.975848, 0), V(-7.764487, 6.812174, 0), V(-7.729482, 6.656864, 0), V(-7.68175, 6.509218, 0), V(-7.619839, 6.370208, 0), V(-7.544152, 6.239467, 0), V(-7.453582, 6.118297, 0), V(-7.35144, 6.005068, 0), V(-7.238408, 5.904119, 0), V(-7.116495, 5.815631, 0), V(-6.987501, 5.740975, 0), V(-6.851613, 5.678111, 0), V(-6.707428, 5.632489, 0), V(-6.557441, 5.597073, 0), V(-6.399224, 5.577962, 0), V(-6.291612, 5.574732, 0), V(-6.236478, 5.573077, 0)], [4, 1, 1, 1, 1, 1, 1, 1, 1, 1, 1, 1, 1, 1, 1, 1, 4], [0, 1.106253802, 2.160835036, 3.183977744, 4.183421548, 5.159890935, 6.124302589, 7.101541683, 8.083003376, 9.071668641, 10.029626693, 10.994038348, 11.952829982, 12.921617172, 13.916395167, 14.932486243, 16], False, 3, [1, 1, 1, 1, 1, 1, 1, 1, 1, 1, 1, 1, 1, 1, 1, 1, 1, 1, 1], False), False)
sketch6.addGeometry(Part.BSplineCurve([V(-6.242488, 8.746154, 0), V(-6.297128, 8.744499, 0), V(-6.404251, 8.741256, 0), V(-6.561378, 8.72202, 0), V(-6.711145, 8.68774, 0), V(-6.852807, 8.636814, 0), V(-6.989206, 8.576103, 0), V(-7.117201, 8.498592, 0), V(-7.237994, 8.407482, 0), V(-7.351556, 8.305192, 0), V(-7.453549, 8.190334, 0), V(-7.54462, 8.06747, 0), V(-7.619839, 7.933899, 0), V(-7.681443, 7.792332, 0), V(-7.729749, 7.642384, 0), V(-7.764586, 7.483998, 0), V(-7.783493, 7.316824, 0), V(-7.786785, 7.202728, 0), V(-7.788462, 7.144591, 0)], [4, 1, 1, 1, 1, 1, 1, 1, 1, 1, 1, 1, 1, 1, 1, 1, 4], [0, 1.050055163, 2.05867895, 3.036770115, 3.995495956, 4.947241397, 5.901173699, 6.863515112, 7.851357518, 8.832757047, 9.810564118, 10.784575339, 11.771479801, 12.772731182, 13.807147486, 14.882647436, 16], False, 3, [1, 1, 1, 1, 1, 1, 1, 1, 1, 1, 1, 1, 1, 1, 1, 1, 1, 1, 1], False), False)
sketch6.addGeometry(Part.BSplineCurve([V(-4.711538, 7.149099, 0), V(-4.713221, 7.205737, 0), V(-4.716536, 7.317341, 0), V(-4.735522, 7.480977, 0), V(-4.769978, 7.637187, 0), V(-4.820617, 7.784453, 0), V(-4.881111, 7.925525, 0), V(-4.959624, 8.056875, 0), V(-5.049117, 8.181927, 0), V(-5.152979, 8.297184, 0), V(-5.266313, 8.400937, 0), V(-5.385851, 8.494632, 0), V(-5.513222, 8.572047, 0), V(-5.64708, 8.636064, 0), V(-5.786523, 8.685662, 0), V(-5.933128, 8.720328, 0), V(-6.085614, 8.741575, 0), V(-6.189836, 8.744617, 0), V(-6.242488, 8.746154, 0)], [4, 1, 1, 1, 1, 1, 1, 1, 1, 1, 1, 1, 1, 1, 1, 1, 4], [0, 1.099575806, 2.166701374, 3.192649988, 4.197894673, 5.185929295, 6.166282287, 7.161891816, 8.166995477, 9.171440763, 10.141716722, 11.110384286, 12.058293159, 13.017598555, 13.97724868, 14.978112372, 16], False, 3, [1, 1, 1, 1, 1, 1, 1, 1, 1, 1, 1, 1, 1, 1, 1, 1, 1, 1, 1], False), False)
sketch6.addGeometry(Part.BSplineCurve([V(-6.236478, 5.573077, 0), V(-6.182839, 5.574724, 0), V(-6.077708, 5.577951, 0), V(-5.923092, 5.597344, 0), V(-5.775353, 5.631571, 0), V(-5.635414, 5.681944, 0), V(-5.501907, 5.743857, 0), V(-5.374803, 5.818877, 0), V(-5.255927, 5.910317, 0), V(-5.144093, 6.013147, 0), V(-5.041449, 6.126316, 0), V(-4.955141, 6.250788, 0), V(-4.87851, 6.380579, 0), V(-4.816697, 6.519087, 0), V(-4.770937, 6.666143, 0), V(-4.73523, 6.820116, 0), V(-4.716611, 6.982379, 0), V(-4.713246, 7.092969, 0), V(-4.711538, 7.149099, 0)], [4, 1, 1, 1, 1, 1, 1, 1, 1, 1, 1, 1, 1, 1, 1, 1, 4], [0, 1.048146026, 2.054297773, 3.039291333, 4.004895774, 4.954855183, 5.911393651, 6.882091317, 7.879305688, 8.877191939, 9.859995919, 10.833402353, 11.818978979, 12.815424932, 13.838562528, 14.902979527, 16], False, 3, [1, 1, 1, 1, 1, 1, 1, 1, 1, 1, 1, 1, 1, 1, 1, 1, 1, 1, 1], False), False)
add_polygon(sketch6, [(-11.826923, 2.207692), (-10.480769, 2.207692), (-10.480769, 4.419231), (-9.807692, 4.419231), (-9.807692, 5.573077), (-10.480769, 5.573077), (-10.480769, 9.9), (-11.826923, 9.9), (-11.826923, 5.573077), (-12.692308, 5.573077), (-12.692308, 4.419231), (-11.826923, 4.419231)])
sketch6.addConstraint(Sketcher.Constraint("Block", 28))
sketch6.addConstraint(Sketcher.Constraint("Block", 29))
sketch6.addConstraint(Sketcher.Constraint("Block", 30))
sketch6.addConstraint(Sketcher.Constraint("Block", 32))
sketch6.addConstraint(Sketcher.Constraint("Block", 33))
sketch6.addConstraint(Sketcher.Constraint("Block", 34))
sketch6.addConstraint(Sketcher.Constraint("Block", 41))
sketch6.addConstraint(Sketcher.Constraint("Block", 42))
sketch6.addConstraint(Sketcher.Constraint("Block", 43))
sketch6.addConstraint(Sketcher.Constraint("Block", 44))
sketch6.addConstraint(Sketcher.Constraint("Block", 48))
sketch6.addConstraint(Sketcher.Constraint("Block", 49))
sketch6.addConstraint(Sketcher.Constraint("Block", 50))
sketch6.addConstraint(Sketcher.Constraint("Block", 51))
sketch6.addConstraint(Sketcher.Constraint("Coincident", 18, 2, 19, 1))
sketch6.addConstraint(Sketcher.Constraint("Coincident", 19, 2, 20, 1))
sketch6.addConstraint(Sketcher.Constraint("Coincident", 20, 2, 21, 1))
sketch6.addConstraint(Sketcher.Constraint("Coincident", 21, 2, 22, 1))
sketch6.addConstraint(Sketcher.Constraint("Coincident", 22, 2, 23, 1))
sketch6.addConstraint(Sketcher.Constraint("Coincident", 23, 2, 24, 1))
sketch6.addConstraint(Sketcher.Constraint("Coincident", 24, 2, 25, 1))
sketch6.addConstraint(Sketcher.Constraint("Coincident", 25, 2, 26, 1))
sketch6.addConstraint(Sketcher.Constraint("Coincident", 26, 2, 27, 1))
sketch6.addConstraint(Sketcher.Constraint("Coincident", 27, 2, 28, 2))
sketch6.addConstraint(Sketcher.Constraint("Coincident", 30, 1, 31, 1))
sketch6.addConstraint(Sketcher.Constraint("Coincident", 31, 2, 32, 2))
sketch6.addConstraint(Sketcher.Constraint("Coincident", 34, 1, 18, 1))
sketch6.addConstraint(Sketcher.Constraint("Coincident", 39, 2, 40, 1))
sketch6.addConstraint(Sketcher.Constraint("Coincident", 40, 2, 41, 2))
sketch6.addConstraint(Sketcher.Constraint("Coincident", 44, 1, 45, 1))
sketch6.addConstraint(Sketcher.Constraint("Coincident", 45, 2, 46, 1))
sketch6.addConstraint(Sketcher.Constraint("Coincident", 46, 2, 47, 1))
sketch6.addConstraint(Sketcher.Constraint("Coincident", 47, 2, 39, 1))
sketch6.addConstraint(Sketcher.Constraint("Horizontal", 0))
sketch6.addConstraint(Sketcher.Constraint("Vertical", 2))
sketch6.addConstraint(Sketcher.Constraint("Horizontal", 3))
sketch6.addConstraint(Sketcher.Constraint("Vertical", 4))
sketch6.addConstraint(Sketcher.Constraint("Horizontal", 5))
sketch6.addConstraint(Sketcher.Constraint("Vertical", 6))
sketch6.addConstraint(Sketcher.Constraint("Horizontal", 7))
sketch6.addConstraint(Sketcher.Constraint("Vertical", 8))
sketch6.addConstraint(Sketcher.Constraint("Horizontal", 9))
sketch6.addConstraint(Sketcher.Constraint("Vertical", 10))
sketch6.addConstraint(Sketcher.Constraint("Horizontal", 11))
sketch6.addConstraint(Sketcher.Constraint("Vertical", 13))
sketch6.addConstraint(Sketcher.Constraint("Vertical", 14))
sketch6.addConstraint(Sketcher.Constraint("Horizontal", 15))
sketch6.addConstraint(Sketcher.Constraint("Vertical", 16))
sketch6.addConstraint(Sketcher.Constraint("Horizontal", 17))
sketch6.addConstraint(Sketcher.Constraint("Horizontal", 18))
sketch6.addConstraint(Sketcher.Constraint("Vertical", 19))
sketch6.addConstraint(Sketcher.Constraint("Horizontal", 20))
sketch6.addConstraint(Sketcher.Constraint("Vertical", 21))
sketch6.addConstraint(Sketcher.Constraint("Horizontal", 22))
sketch6.addConstraint(Sketcher.Constraint("Vertical", 23))
sketch6.addConstraint(Sketcher.Constraint("Horizontal", 24))
sketch6.addConstraint(Sketcher.Constraint("Vertical", 25))
sketch6.addConstraint(Sketcher.Constraint("Horizontal", 26))
sketch6.addConstraint(Sketcher.Constraint("Vertical", 35))
sketch6.addConstraint(Sketcher.Constraint("Horizontal", 36))
sketch6.addConstraint(Sketcher.Constraint("Vertical", 37))
sketch6.addConstraint(Sketcher.Constraint("Horizontal", 38))
sketch6.addConstraint(Sketcher.Constraint("Horizontal", 39))
sketch6.addConstraint(Sketcher.Constraint("Vertical", 40))
sketch6.addConstraint(Sketcher.Constraint("Vertical", 45))
sketch6.addConstraint(Sketcher.Constraint("Horizontal", 46))
sketch6.addConstraint(Sketcher.Constraint("Vertical", 47))
sketch6.addConstraint(Sketcher.Constraint("Horizontal", 52))
sketch6.addConstraint(Sketcher.Constraint("Vertical", 53))
sketch6.addConstraint(Sketcher.Constraint("Horizontal", 54))
sketch6.addConstraint(Sketcher.Constraint("Vertical", 55))
sketch6.addConstraint(Sketcher.Constraint("Horizontal", 56))
sketch6.addConstraint(Sketcher.Constraint("Vertical", 57))
sketch6.addConstraint(Sketcher.Constraint("Horizontal", 58))
sketch6.addConstraint(Sketcher.Constraint("Vertical", 59))
sketch6.addConstraint(Sketcher.Constraint("Horizontal", 60))
sketch6.addConstraint(Sketcher.Constraint("Vertical", 61))
sketch6.addConstraint(Sketcher.Constraint("Horizontal", 62))
sketch6.addConstraint(Sketcher.Constraint("Vertical", 63))
sketch6.addConstraint(Sketcher.Constraint("Horizontal", 3, 2, 6, 2))
sketch6.addConstraint(Sketcher.Constraint("Horizontal", 9, 2, 11, 2))
sketch6.addConstraint(Sketcher.Constraint("Horizontal", 5, 2, 21, 2))
sketch6.addConstraint(Sketcher.Constraint("Horizontal", 20, 2, 23, 2))
sketch6.addConstraint(Sketcher.Constraint("Horizontal", 18, 2, 25, 2))
sketch6.addConstraint(Sketcher.Constraint("Horizontal", 10, 2, 35, 2))
sketch6.addConstraint(Sketcher.Constraint("Horizontal", 22, 2, 37, 2))
sketch6.addConstraint(Sketcher.Constraint("Horizontal", 26, 2, 39, 2))
sketch6.addConstraint(Sketcher.Constraint("Horizontal", 38, 2, 45, 2))
sketch6.addConstraint(Sketcher.Constraint("Horizontal", 36, 2, 52, 2))
sketch6.addConstraint(Sketcher.Constraint("Horizontal", 47, 2, 53, 2))
sketch6.addConstraint(Sketcher.Constraint("Horizontal", 24, 2, 55, 2))
sketch6.addConstraint(Sketcher.Constraint("Horizontal", 46, 2, 57, 2))
sketch6.addConstraint(Sketcher.Constraint("Horizontal", 56, 2, 59, 2))
sketch6.addConstraint(Sketcher.Constraint("Horizontal", 54, 2, 61, 2))
sketch6.addConstraint(Sketcher.Constraint("Vertical", 6, 2, 9, 2))
sketch6.addConstraint(Sketcher.Constraint("Vertical", 4, 2, 12, 2))
sketch6.addConstraint(Sketcher.Constraint("Vertical", 53, 2, 56, 2))
sketch6.addConstraint(Sketcher.Constraint("Vertical", 59, 2, 62, 2))
sketch6.addConstraint(Sketcher.Constraint("Equal", 18, 20))
sketch6.addConstraint(Sketcher.Constraint("Equal", 5, 22))
sketch6.addConstraint(Sketcher.Constraint("Equal", 22, 36))
sketch6.addConstraint(Sketcher.Constraint("Equal", 38, 39))
sketch6.addConstraint(Sketcher.Constraint("Equal", 46, 52))
sketch6.addConstraint(Sketcher.Constraint("Equal", 9, 54))
sketch6.addConstraint(Sketcher.Constraint("Equal", 8, 14))
sketch6.addConstraint(Sketcher.Constraint("DistanceY", 8, 2, 8, 1, 1.25))
sketch6.addConstraint(Sketcher.Constraint("DistanceY", -1, 1, 4, 2, 9.9))
sketch6.addConstraint(Sketcher.Constraint("DistanceX", -1, 1, 18, 2, 2.5))
sketch6.addConstraint(Sketcher.Constraint("DistanceX", 15, 2, 8, 2, 1.25))
sketch6.addConstraint(Sketcher.Constraint("Distance", 1, 5.715298))
sketch6.addConstraint(Sketcher.Constraint("DistanceX", 24, 2, 24, 1, 0.961538))
sketch6.addConstraint(Sketcher.Constraint("DistanceX", 26, 1, 26, 2, 0.869892))
sketch6.addConstraint(Sketcher.Constraint("DistanceY", 2, 1, 2, 2, 1.36268))
sketch6.addConstraint(Sketcher.Constraint("DistanceY", 4, 1, 4, 2, 1.538462))
sketch6.addConstraint(Sketcher.Constraint("DistanceY", 53, 1, 53, 2, 2.211538))
sketch6.addConstraint(Sketcher.Constraint("DistanceX", 26, 2, 20, 2, 1.4378))
sketch6.addConstraint(Sketcher.Constraint("DistanceX", 0, 1, 0, 2, 1.403245))
sketch6.addConstraint(Sketcher.Constraint("DistanceX", 7, 2, 7, 1, 0.673077))
sketch6.addConstraint(Sketcher.Constraint("DistanceX", 11, 1, 11, 2, 1.660156))
sketch6.addConstraint(Sketcher.Constraint("DistanceX", 15, 1, 15, 2, 2.596154))
sketch6.addConstraint(Sketcher.Constraint("DistanceX", 60, 2, 60, 1, 0.865385))
sketch6.addConstraint(Sketcher.Constraint("DistanceY", 13, 1, 13, 2, 2.552584))
sketch6.addConstraint(Sketcher.Constraint("DistanceY", 19, 1, 19, 2, 1.153846))
sketch6.addConstraint(Sketcher.Constraint("DistanceX", -1, 1, 0, 2, 9.287861))
sketch6.addConstraint(Sketcher.Constraint("DistanceX", 36, 2, -1, 1, 0.961538))
sketch6.addConstraint(Sketcher.Constraint("DistanceX", 52, 2, -1, 1, 10.480769))
sketch6.addConstraint(Sketcher.Constraint("DistanceY", 19, 2, 14, 2, 0.961538))
pocket2 = body2.newObject("PartDesign::Pocket", "Pocket001")
pocket2.Profile = sketch6
pocket2.Length = 1

doc.recompute()
